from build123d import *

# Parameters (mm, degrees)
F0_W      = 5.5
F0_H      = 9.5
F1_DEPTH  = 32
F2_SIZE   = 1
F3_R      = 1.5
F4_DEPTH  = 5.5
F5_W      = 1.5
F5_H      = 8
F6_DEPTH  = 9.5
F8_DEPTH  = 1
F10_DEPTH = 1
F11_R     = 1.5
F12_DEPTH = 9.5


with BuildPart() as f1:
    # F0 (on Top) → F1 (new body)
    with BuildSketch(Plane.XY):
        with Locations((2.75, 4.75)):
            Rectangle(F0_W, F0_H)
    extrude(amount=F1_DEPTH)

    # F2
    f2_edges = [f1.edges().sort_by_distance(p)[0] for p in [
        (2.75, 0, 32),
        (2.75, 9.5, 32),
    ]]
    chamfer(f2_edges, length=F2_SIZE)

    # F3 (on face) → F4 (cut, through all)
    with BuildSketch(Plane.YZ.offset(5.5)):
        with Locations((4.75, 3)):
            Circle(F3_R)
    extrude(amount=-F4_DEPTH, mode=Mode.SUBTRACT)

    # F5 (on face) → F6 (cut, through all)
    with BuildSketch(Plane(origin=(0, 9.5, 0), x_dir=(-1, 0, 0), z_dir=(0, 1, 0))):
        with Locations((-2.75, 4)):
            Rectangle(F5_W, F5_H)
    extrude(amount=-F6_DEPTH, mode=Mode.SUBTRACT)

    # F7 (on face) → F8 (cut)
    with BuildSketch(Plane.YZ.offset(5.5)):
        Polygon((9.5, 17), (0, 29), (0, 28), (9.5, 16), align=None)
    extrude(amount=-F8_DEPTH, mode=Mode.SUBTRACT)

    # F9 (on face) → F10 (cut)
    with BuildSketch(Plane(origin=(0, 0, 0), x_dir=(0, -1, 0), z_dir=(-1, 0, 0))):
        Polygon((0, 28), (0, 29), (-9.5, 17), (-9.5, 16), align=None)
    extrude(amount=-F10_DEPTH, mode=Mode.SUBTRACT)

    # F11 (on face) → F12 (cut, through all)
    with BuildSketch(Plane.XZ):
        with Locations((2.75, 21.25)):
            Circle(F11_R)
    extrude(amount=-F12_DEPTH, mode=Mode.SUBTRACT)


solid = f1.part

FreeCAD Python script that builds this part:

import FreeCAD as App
import Part
import Sketcher

V = App.Vector


def edges_at(feature, points):
    """Names of the edges that pass closest to the given points."""
    edges = feature.Shape.Edges
    near = lambda p: min(range(len(edges)), key=lambda i: edges[i].distToShape(Part.Vertex(*p))[0])
    return sorted({f"Edge{near(p) + 1}" for p in points})


def add_polygon(sketch, points):
    """Adds a closed chain of lines whose ends are joined by coincident constraints."""
    first, n = sketch.GeometryCount, len(points)
    for a, b in zip(points, points[1:] + points[:1]):
        sketch.addGeometry(Part.LineSegment(App.Vector(*a, 0), App.Vector(*b, 0)), False)
    for i in range(n):
        sketch.addConstraint(Sketcher.Constraint("Coincident", first + i, 2, first + (i + 1) % n, 1))

doc = App.newDocument("Part")
params = doc.addObject("Spreadsheet::Sheet", "Params")
for row, (alias, value) in enumerate([
    ("sketch1_width", "5.5 mm"),
    ("sketch1_height", "9.5 mm"),
    ("pad1_length", "32 mm"),
    ("chamfer_size", "1 mm"),
    ("sketch2_diameter", "3 mm"),
    ("sketch3_height", "8 mm"),
    ("sketch3_width", "1.5 mm"),
    ("sketch4_height", "1 mm"),
    ("pocket3_length", "1 mm"),
    ("sketch5_height", "1 mm"),
    ("pocket4_length", "1 mm"),
    ("sketch6_diameter", "3 mm"),
], start=1):
    params.set(f"A{row}", alias)
    params.set(f"B{row}", "=" + value)
    params.setAlias(f"B{row}", alias)

body = doc.addObject("PartDesign::Body", "Body")

# Sketch on XY plane
sketch1 = doc.addObject("Sketcher::SketchObject", "Sketch")
body.addObject(sketch1)
sketch1.AttachmentSupport = (doc.XY_Plane, [""])
sketch1.MapMode = "FlatFace"
add_polygon(sketch1, [(0, 9.5), (0, 0), (5.5, 0), (5.5, 9.5)])  # lines 0-3
sketch1.addConstraint([
    Sketcher.Constraint("Vertical", 0),
    Sketcher.Constraint("Horizontal", 1),
    Sketcher.Constraint("Vertical", 2),
    Sketcher.Constraint("Horizontal", 3),
    Sketcher.Constraint("Coincident", 0, 2, -1, 1),
    Sketcher.Constraint("DistanceX", 1, 1, 1, 2, 5.5),
    Sketcher.Constraint("DistanceY", 0, 2, 0, 1, 9.5),
])
sketch1.setExpression("Constraints[9]", "Params.sketch1_width")
sketch1.setExpression("Constraints[10]", "Params.sketch1_height")
pad1 = doc.addObject("PartDesign::Pad", "Pad")
body.addObject(pad1)
pad1.Profile = sketch1
pad1.setExpression("Length", "Params.pad1_length")
doc.recompute()

chamfer = doc.addObject("PartDesign::Chamfer", "Chamfer")
body.addObject(chamfer)
chamfer.Base = (pad1, edges_at(pad1, [(2.75, 0, 32), (2.75, 9.5, 32)]))
chamfer.setExpression("Size", "Params.chamfer_size")

# Sketch on YZ plane
sketch2 = doc.addObject("Sketcher::SketchObject", "Sketch001")
body.addObject(sketch2)
sketch2.AttachmentSupport = (doc.YZ_Plane, [""])
sketch2.MapMode = "FlatFace"
sketch2.AttachmentOffset = App.Placement(V(0, 0, 5.5), App.Rotation())
sketch2.addGeometry(Part.Circle(V(4.75, 3, 0), V(0, 0, 1), 1.5), False)
sketch2.addConstraint([
    Sketcher.Constraint("Diameter", 0, 3.0),
    Sketcher.Constraint("DistanceY", -1, 1, 0, 3, 3.0),
    Sketcher.Constraint("DistanceX", -1, 1, 0, 3, 4.75),
])
sketch2.setExpression("Constraints[0]", "Params.sketch2_diameter")
pocket1 = doc.addObject("PartDesign::Pocket", "Pocket")
body.addObject(pocket1)
pocket1.Profile = sketch2
pocket1.Type = "ThroughAll"

# Sketch on XZ plane
sketch3 = doc.addObject("Sketcher::SketchObject", "Sketch002")
body.addObject(sketch3)
sketch3.AttachmentSupport = (doc.XZ_Plane, [""])
sketch3.MapMode = "FlatFace"
sketch3.AttachmentOffset = App.Placement(V(0, 0, -9.5), App.Rotation())
add_polygon(sketch3, [(3.5, 8), (3.5, 0), (2, 0), (2, 8)])  # lines 0-3
sketch3.addConstraint([
    Sketcher.Constraint("Vertical", 0),
    Sketcher.Constraint("Horizontal", 1),
    Sketcher.Constraint("Vertical", 2),
    Sketcher.Constraint("Horizontal", 3),
    Sketcher.Constraint("PointOnObject", 0, 2, -1),
    Sketcher.Constraint("DistanceY", 0, 2, 0, 1, 8.0),
    Sketcher.Constraint("DistanceX", 1, 2, 1, 1, 1.5),
    Sketcher.Constraint("DistanceX", -1, 1, 1, 2, 2.0),
])
sketch3.setExpression("Constraints[9]", "Params.sketch3_height")
sketch3.setExpression("Constraints[10]", "Params.sketch3_width")
pocket2 = doc.addObject("PartDesign::Pocket", "Pocket001")
body.addObject(pocket2)
pocket2.Profile = sketch3
pocket2.Type = "ThroughAll"
pocket2.Reversed = True

# Sketch on YZ plane
sketch4 = doc.addObject("Sketcher::SketchObject", "Sketch003")
body.addObject(sketch4)
sketch4.AttachmentSupport = (doc.YZ_Plane, [""])
sketch4.MapMode = "FlatFace"
sketch4.AttachmentOffset = App.Placement(V(0, 0, 5.5), App.Rotation())
add_polygon(sketch4, [(9.5, 17), (0, 29), (0, 28), (9.5, 16)])  # lines 0-3
sketch4.addConstraint([
    Sketcher.Constraint("Vertical", 1),
    Sketcher.Constraint("Vertical", 3),
    Sketcher.Constraint("PointOnObject", 0, 2, -2),
    Sketcher.Constraint("Parallel", 0, 2),
    Sketcher.Constraint("DistanceY", 1, 2, 1, 1, 1.0),
    Sketcher.Constraint("DistanceY", -1, 1, 0, 2, 29.0),
    Sketcher.Constraint("DistanceY", -1, 1, 2, 2, 16.0),
    Sketcher.Constraint("DistanceX", -1, 1, 2, 2, 9.5),
])
sketch4.setExpression("Constraints[8]", "Params.sketch4_height")
pocket3 = doc.addObject("PartDesign::Pocket", "Pocket002")
body.addObject(pocket3)
pocket3.Profile = sketch4
pocket3.setExpression("Length", "Params.pocket3_length")

# Sketch on YZ plane
sketch5 = doc.addObject("Sketcher::SketchObject", "Sketch004")
body.addObject(sketch5)
sketch5.AttachmentSupport = (doc.YZ_Plane, [""])
sketch5.MapMode = "FlatFace"
add_polygon(sketch5, [(0, 28), (0, 29), (9.5, 17), (9.5, 16)])  # lines 0-3
sketch5.addConstraint([
    Sketcher.Constraint("Vertical", 0),
    Sketcher.Constraint("Vertical", 2),
    Sketcher.Constraint("PointOnObject", 0, 2, -2),
    Sketcher.Constraint("Parallel", 1, 3),
    Sketcher.Constraint("DistanceY", 0, 1, 0, 2, 1.0),
    Sketcher.Constraint("DistanceY", -1, 1, 0, 2, 29.0),
    Sketcher.Constraint("DistanceY", -1, 1, 1, 2, 17.0),
    Sketcher.Constraint("DistanceX", -1, 1, 1, 2, 9.5),
])
sketch5.setExpression("Constraints[8]", "Params.sketch5_height")
pocket4 = doc.addObject("PartDesign::Pocket", "Pocket003")
body.addObject(pocket4)
pocket4.Profile = sketch5
pocket4.setExpression("Length", "Params.pocket4_length")
pocket4.Reversed = True

# Sketch on XZ plane
sketch6 = doc.addObject("Sketcher::SketchObject", "Sketch005")
body.addObject(sketch6)
sketch6.AttachmentSupport = (doc.XZ_Plane, [""])
sketch6.MapMode = "FlatFace"
sketch6.addGeometry(Part.Circle(V(2.75, 21.25, 0), V(0, 0, 1), 1.5), False)
sketch6.addConstraint([
    Sketcher.Constraint("Diameter", 0, 3.0),
    Sketcher.Constraint("DistanceX", -1, 1, 0, 3, 2.75),
    Sketcher.Constraint("DistanceY", -1, 1, 0, 3, 21.25),
])
sketch6.setExpression("Constraints[0]", "Params.sketch6_diameter")
pocket5 = doc.addObject("PartDesign::Pocket", "Pocket004")
body.addObject(pocket5)
pocket5.Profile = sketch6
pocket5.Type = "ThroughAll"

doc.recompute()
